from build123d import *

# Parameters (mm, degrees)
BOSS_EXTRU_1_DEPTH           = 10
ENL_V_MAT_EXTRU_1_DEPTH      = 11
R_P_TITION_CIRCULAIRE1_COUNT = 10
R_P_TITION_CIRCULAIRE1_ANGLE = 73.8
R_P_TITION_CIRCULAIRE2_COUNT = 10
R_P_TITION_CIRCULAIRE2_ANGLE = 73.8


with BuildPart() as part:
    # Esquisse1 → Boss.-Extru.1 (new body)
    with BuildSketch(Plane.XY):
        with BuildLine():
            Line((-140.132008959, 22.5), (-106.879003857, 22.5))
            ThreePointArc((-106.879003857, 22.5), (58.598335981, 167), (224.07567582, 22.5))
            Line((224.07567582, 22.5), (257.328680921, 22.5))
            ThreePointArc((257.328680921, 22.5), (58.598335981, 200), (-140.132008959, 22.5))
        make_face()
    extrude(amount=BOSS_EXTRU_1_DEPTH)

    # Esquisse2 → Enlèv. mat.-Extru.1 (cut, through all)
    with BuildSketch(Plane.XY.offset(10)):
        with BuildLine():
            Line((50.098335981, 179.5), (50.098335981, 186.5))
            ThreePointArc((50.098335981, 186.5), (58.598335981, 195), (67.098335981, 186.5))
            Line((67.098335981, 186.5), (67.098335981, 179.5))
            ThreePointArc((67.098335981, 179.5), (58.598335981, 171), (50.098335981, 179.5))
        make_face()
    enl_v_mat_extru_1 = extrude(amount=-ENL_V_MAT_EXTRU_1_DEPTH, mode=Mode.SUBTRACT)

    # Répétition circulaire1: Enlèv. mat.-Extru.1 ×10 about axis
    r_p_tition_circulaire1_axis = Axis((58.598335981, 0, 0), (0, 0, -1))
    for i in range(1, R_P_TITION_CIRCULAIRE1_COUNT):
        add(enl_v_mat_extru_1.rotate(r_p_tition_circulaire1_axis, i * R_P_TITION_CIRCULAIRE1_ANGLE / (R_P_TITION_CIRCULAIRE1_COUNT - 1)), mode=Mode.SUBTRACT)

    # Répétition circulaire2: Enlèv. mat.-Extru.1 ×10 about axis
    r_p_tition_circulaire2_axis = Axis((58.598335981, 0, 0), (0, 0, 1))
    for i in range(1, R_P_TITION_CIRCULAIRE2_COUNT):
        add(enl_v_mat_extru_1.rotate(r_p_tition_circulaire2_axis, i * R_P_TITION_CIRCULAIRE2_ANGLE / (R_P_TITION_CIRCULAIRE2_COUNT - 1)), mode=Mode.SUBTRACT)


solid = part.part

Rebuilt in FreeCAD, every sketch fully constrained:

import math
import FreeCAD as App
import Part
import Sketcher

V = App.Vector

doc = App.newDocument("Part")
body = doc.addObject("PartDesign::Body", "Body")

# Sketch on XY plane
sketch1 = body.newObject("Sketcher::SketchObject", "Sketch")
sketch1.AttachmentSupport = (doc.getObject("XY_Plane"), [""])
sketch1.MapMode = "FlatFace"
sketch1.addGeometry(Part.LineSegment(V(-140, 22, 0), V(-107, 22, 0)), False)
sketch1.addGeometry(Part.ArcOfCircle(Part.Circle(V(59, 0, 0), V(0, 0, 1), 167), math.radians(8), math.radians(172)), False)
sketch1.addGeometry(Part.LineSegment(V(224, 22, 0), V(257, 22, 0)), False)
sketch1.addGeometry(Part.ArcOfCircle(Part.Circle(V(59, 0, 0), V(0, 0, 1), 200), math.radians(6), math.radians(174)), False)
sketch1.addConstraint(Sketcher.Constraint("Coincident", 0, 2, 1, 2))
sketch1.addConstraint(Sketcher.Constraint("Coincident", 1, 1, 2, 1))
sketch1.addConstraint(Sketcher.Constraint("Coincident", 2, 2, 3, 1))
sketch1.addConstraint(Sketcher.Constraint("Coincident", 3, 2, 0, 1))
sketch1.addConstraint(Sketcher.Constraint("Horizontal", 0))
sketch1.addConstraint(Sketcher.Constraint("Horizontal", 2))
sketch1.addConstraint(Sketcher.Constraint("Coincident", 3, 3, 1, 3))
sketch1.addConstraint(Sketcher.Constraint("PointOnObject", 1, 3, -1))
sketch1.addConstraint(Sketcher.Constraint("Horizontal", 0, 2, 1, 1))
sketch1.addConstraint(Sketcher.Constraint("Radius", 1, 167.0))
sketch1.addConstraint(Sketcher.Constraint("Radius", 3, 200.0))
sketch1.addConstraint(Sketcher.Constraint("DistanceY", -1, 1, 0, 2, 22.5))
sketch1.addConstraint(Sketcher.Constraint("DistanceX", -1, 1, 2, 2, 257.328681))
pad1 = body.newObject("PartDesign::Pad", "Pad")
pad1.Profile = sketch1
pad1.Length = 10

# Sketch on XY plane
sketch2 = body.newObject("Sketcher::SketchObject", "Sketch001")
sketch2.AttachmentSupport = (doc.getObject("XY_Plane"), [""])
sketch2.MapMode = "FlatFace"
sketch2.AttachmentOffset = App.Placement(V(0, 0, 10), App.Rotation())
sketch2.addGeometry(Part.LineSegment(V(50, 186, 0), V(50, 180, 0)), False)
sketch2.addGeometry(Part.ArcOfCircle(Part.Circle(V(59, 180, 0), V(0, 0, 1), 8), math.radians(180), math.radians(360)), False)
sketch2.addGeometry(Part.LineSegment(V(67, 180, 0), V(67, 186, 0)), False)
sketch2.addGeometry(Part.ArcOfCircle(Part.Circle(V(59, 186, 0), V(0, 0, 1), 8), math.radians(0), math.radians(180)), False)
sketch2.addConstraint(Sketcher.Constraint("Tangent", 0, 2, 1, 1))
sketch2.addConstraint(Sketcher.Constraint("Tangent", 1, 2, 2, 1))
sketch2.addConstraint(Sketcher.Constraint("Tangent", 2, 2, 3, 1))
sketch2.addConstraint(Sketcher.Constraint("Tangent", 3, 2, 0, 1))
sketch2.addConstraint(Sketcher.Constraint("Vertical", 0))
sketch2.addConstraint(Sketcher.Constraint("Vertical", 2))
sketch2.addConstraint(Sketcher.Constraint("Radius", 1, 8.5))
sketch2.addConstraint(Sketcher.Constraint("DistanceY", 0, 2, 0, 1, 7.0))
sketch2.addConstraint(Sketcher.Constraint("DistanceY", -1, 1, 1, 3, 179.5))
sketch2.addConstraint(Sketcher.Constraint("DistanceX", -1, 1, 1, 3, 58.598336))
pocket1 = body.newObject("PartDesign::Pocket", "Pocket")
pocket1.Profile = sketch2
pocket1.Type = "ThroughAll"
doc.recompute()

datumline = body.newObject("PartDesign::Line", "DatumLine")
datumline.Placement = App.Placement(V(58.598336, 0, 0), App.Rotation(V(0, 0, 1), V(0, 0, -1)))
polarpattern = body.newObject("PartDesign::PolarPattern", "PolarPattern")
polarpattern.Originals = [pocket1]
polarpattern.Axis = (datumline, [""])
polarpattern.Angle = 73.8
polarpattern.Occurrences = 10
body.Tip = polarpattern
doc.recompute()

datumline2 = body.newObject("PartDesign::Line", "DatumLine001")
datumline2.Placement = App.Placement(V(58.598336, 0, 0), App.Rotation(V(0, 0, 1), V(0, 0, 1)))
polarpattern2 = body.newObject("PartDesign::PolarPattern", "PolarPattern001")
polarpattern2.Originals = [pocket1]
polarpattern2.Axis = (datumline2, [""])
polarpattern2.Angle = 73.8
polarpattern2.Occurrences = 10
body.Tip = polarpattern2

doc.recompute()
